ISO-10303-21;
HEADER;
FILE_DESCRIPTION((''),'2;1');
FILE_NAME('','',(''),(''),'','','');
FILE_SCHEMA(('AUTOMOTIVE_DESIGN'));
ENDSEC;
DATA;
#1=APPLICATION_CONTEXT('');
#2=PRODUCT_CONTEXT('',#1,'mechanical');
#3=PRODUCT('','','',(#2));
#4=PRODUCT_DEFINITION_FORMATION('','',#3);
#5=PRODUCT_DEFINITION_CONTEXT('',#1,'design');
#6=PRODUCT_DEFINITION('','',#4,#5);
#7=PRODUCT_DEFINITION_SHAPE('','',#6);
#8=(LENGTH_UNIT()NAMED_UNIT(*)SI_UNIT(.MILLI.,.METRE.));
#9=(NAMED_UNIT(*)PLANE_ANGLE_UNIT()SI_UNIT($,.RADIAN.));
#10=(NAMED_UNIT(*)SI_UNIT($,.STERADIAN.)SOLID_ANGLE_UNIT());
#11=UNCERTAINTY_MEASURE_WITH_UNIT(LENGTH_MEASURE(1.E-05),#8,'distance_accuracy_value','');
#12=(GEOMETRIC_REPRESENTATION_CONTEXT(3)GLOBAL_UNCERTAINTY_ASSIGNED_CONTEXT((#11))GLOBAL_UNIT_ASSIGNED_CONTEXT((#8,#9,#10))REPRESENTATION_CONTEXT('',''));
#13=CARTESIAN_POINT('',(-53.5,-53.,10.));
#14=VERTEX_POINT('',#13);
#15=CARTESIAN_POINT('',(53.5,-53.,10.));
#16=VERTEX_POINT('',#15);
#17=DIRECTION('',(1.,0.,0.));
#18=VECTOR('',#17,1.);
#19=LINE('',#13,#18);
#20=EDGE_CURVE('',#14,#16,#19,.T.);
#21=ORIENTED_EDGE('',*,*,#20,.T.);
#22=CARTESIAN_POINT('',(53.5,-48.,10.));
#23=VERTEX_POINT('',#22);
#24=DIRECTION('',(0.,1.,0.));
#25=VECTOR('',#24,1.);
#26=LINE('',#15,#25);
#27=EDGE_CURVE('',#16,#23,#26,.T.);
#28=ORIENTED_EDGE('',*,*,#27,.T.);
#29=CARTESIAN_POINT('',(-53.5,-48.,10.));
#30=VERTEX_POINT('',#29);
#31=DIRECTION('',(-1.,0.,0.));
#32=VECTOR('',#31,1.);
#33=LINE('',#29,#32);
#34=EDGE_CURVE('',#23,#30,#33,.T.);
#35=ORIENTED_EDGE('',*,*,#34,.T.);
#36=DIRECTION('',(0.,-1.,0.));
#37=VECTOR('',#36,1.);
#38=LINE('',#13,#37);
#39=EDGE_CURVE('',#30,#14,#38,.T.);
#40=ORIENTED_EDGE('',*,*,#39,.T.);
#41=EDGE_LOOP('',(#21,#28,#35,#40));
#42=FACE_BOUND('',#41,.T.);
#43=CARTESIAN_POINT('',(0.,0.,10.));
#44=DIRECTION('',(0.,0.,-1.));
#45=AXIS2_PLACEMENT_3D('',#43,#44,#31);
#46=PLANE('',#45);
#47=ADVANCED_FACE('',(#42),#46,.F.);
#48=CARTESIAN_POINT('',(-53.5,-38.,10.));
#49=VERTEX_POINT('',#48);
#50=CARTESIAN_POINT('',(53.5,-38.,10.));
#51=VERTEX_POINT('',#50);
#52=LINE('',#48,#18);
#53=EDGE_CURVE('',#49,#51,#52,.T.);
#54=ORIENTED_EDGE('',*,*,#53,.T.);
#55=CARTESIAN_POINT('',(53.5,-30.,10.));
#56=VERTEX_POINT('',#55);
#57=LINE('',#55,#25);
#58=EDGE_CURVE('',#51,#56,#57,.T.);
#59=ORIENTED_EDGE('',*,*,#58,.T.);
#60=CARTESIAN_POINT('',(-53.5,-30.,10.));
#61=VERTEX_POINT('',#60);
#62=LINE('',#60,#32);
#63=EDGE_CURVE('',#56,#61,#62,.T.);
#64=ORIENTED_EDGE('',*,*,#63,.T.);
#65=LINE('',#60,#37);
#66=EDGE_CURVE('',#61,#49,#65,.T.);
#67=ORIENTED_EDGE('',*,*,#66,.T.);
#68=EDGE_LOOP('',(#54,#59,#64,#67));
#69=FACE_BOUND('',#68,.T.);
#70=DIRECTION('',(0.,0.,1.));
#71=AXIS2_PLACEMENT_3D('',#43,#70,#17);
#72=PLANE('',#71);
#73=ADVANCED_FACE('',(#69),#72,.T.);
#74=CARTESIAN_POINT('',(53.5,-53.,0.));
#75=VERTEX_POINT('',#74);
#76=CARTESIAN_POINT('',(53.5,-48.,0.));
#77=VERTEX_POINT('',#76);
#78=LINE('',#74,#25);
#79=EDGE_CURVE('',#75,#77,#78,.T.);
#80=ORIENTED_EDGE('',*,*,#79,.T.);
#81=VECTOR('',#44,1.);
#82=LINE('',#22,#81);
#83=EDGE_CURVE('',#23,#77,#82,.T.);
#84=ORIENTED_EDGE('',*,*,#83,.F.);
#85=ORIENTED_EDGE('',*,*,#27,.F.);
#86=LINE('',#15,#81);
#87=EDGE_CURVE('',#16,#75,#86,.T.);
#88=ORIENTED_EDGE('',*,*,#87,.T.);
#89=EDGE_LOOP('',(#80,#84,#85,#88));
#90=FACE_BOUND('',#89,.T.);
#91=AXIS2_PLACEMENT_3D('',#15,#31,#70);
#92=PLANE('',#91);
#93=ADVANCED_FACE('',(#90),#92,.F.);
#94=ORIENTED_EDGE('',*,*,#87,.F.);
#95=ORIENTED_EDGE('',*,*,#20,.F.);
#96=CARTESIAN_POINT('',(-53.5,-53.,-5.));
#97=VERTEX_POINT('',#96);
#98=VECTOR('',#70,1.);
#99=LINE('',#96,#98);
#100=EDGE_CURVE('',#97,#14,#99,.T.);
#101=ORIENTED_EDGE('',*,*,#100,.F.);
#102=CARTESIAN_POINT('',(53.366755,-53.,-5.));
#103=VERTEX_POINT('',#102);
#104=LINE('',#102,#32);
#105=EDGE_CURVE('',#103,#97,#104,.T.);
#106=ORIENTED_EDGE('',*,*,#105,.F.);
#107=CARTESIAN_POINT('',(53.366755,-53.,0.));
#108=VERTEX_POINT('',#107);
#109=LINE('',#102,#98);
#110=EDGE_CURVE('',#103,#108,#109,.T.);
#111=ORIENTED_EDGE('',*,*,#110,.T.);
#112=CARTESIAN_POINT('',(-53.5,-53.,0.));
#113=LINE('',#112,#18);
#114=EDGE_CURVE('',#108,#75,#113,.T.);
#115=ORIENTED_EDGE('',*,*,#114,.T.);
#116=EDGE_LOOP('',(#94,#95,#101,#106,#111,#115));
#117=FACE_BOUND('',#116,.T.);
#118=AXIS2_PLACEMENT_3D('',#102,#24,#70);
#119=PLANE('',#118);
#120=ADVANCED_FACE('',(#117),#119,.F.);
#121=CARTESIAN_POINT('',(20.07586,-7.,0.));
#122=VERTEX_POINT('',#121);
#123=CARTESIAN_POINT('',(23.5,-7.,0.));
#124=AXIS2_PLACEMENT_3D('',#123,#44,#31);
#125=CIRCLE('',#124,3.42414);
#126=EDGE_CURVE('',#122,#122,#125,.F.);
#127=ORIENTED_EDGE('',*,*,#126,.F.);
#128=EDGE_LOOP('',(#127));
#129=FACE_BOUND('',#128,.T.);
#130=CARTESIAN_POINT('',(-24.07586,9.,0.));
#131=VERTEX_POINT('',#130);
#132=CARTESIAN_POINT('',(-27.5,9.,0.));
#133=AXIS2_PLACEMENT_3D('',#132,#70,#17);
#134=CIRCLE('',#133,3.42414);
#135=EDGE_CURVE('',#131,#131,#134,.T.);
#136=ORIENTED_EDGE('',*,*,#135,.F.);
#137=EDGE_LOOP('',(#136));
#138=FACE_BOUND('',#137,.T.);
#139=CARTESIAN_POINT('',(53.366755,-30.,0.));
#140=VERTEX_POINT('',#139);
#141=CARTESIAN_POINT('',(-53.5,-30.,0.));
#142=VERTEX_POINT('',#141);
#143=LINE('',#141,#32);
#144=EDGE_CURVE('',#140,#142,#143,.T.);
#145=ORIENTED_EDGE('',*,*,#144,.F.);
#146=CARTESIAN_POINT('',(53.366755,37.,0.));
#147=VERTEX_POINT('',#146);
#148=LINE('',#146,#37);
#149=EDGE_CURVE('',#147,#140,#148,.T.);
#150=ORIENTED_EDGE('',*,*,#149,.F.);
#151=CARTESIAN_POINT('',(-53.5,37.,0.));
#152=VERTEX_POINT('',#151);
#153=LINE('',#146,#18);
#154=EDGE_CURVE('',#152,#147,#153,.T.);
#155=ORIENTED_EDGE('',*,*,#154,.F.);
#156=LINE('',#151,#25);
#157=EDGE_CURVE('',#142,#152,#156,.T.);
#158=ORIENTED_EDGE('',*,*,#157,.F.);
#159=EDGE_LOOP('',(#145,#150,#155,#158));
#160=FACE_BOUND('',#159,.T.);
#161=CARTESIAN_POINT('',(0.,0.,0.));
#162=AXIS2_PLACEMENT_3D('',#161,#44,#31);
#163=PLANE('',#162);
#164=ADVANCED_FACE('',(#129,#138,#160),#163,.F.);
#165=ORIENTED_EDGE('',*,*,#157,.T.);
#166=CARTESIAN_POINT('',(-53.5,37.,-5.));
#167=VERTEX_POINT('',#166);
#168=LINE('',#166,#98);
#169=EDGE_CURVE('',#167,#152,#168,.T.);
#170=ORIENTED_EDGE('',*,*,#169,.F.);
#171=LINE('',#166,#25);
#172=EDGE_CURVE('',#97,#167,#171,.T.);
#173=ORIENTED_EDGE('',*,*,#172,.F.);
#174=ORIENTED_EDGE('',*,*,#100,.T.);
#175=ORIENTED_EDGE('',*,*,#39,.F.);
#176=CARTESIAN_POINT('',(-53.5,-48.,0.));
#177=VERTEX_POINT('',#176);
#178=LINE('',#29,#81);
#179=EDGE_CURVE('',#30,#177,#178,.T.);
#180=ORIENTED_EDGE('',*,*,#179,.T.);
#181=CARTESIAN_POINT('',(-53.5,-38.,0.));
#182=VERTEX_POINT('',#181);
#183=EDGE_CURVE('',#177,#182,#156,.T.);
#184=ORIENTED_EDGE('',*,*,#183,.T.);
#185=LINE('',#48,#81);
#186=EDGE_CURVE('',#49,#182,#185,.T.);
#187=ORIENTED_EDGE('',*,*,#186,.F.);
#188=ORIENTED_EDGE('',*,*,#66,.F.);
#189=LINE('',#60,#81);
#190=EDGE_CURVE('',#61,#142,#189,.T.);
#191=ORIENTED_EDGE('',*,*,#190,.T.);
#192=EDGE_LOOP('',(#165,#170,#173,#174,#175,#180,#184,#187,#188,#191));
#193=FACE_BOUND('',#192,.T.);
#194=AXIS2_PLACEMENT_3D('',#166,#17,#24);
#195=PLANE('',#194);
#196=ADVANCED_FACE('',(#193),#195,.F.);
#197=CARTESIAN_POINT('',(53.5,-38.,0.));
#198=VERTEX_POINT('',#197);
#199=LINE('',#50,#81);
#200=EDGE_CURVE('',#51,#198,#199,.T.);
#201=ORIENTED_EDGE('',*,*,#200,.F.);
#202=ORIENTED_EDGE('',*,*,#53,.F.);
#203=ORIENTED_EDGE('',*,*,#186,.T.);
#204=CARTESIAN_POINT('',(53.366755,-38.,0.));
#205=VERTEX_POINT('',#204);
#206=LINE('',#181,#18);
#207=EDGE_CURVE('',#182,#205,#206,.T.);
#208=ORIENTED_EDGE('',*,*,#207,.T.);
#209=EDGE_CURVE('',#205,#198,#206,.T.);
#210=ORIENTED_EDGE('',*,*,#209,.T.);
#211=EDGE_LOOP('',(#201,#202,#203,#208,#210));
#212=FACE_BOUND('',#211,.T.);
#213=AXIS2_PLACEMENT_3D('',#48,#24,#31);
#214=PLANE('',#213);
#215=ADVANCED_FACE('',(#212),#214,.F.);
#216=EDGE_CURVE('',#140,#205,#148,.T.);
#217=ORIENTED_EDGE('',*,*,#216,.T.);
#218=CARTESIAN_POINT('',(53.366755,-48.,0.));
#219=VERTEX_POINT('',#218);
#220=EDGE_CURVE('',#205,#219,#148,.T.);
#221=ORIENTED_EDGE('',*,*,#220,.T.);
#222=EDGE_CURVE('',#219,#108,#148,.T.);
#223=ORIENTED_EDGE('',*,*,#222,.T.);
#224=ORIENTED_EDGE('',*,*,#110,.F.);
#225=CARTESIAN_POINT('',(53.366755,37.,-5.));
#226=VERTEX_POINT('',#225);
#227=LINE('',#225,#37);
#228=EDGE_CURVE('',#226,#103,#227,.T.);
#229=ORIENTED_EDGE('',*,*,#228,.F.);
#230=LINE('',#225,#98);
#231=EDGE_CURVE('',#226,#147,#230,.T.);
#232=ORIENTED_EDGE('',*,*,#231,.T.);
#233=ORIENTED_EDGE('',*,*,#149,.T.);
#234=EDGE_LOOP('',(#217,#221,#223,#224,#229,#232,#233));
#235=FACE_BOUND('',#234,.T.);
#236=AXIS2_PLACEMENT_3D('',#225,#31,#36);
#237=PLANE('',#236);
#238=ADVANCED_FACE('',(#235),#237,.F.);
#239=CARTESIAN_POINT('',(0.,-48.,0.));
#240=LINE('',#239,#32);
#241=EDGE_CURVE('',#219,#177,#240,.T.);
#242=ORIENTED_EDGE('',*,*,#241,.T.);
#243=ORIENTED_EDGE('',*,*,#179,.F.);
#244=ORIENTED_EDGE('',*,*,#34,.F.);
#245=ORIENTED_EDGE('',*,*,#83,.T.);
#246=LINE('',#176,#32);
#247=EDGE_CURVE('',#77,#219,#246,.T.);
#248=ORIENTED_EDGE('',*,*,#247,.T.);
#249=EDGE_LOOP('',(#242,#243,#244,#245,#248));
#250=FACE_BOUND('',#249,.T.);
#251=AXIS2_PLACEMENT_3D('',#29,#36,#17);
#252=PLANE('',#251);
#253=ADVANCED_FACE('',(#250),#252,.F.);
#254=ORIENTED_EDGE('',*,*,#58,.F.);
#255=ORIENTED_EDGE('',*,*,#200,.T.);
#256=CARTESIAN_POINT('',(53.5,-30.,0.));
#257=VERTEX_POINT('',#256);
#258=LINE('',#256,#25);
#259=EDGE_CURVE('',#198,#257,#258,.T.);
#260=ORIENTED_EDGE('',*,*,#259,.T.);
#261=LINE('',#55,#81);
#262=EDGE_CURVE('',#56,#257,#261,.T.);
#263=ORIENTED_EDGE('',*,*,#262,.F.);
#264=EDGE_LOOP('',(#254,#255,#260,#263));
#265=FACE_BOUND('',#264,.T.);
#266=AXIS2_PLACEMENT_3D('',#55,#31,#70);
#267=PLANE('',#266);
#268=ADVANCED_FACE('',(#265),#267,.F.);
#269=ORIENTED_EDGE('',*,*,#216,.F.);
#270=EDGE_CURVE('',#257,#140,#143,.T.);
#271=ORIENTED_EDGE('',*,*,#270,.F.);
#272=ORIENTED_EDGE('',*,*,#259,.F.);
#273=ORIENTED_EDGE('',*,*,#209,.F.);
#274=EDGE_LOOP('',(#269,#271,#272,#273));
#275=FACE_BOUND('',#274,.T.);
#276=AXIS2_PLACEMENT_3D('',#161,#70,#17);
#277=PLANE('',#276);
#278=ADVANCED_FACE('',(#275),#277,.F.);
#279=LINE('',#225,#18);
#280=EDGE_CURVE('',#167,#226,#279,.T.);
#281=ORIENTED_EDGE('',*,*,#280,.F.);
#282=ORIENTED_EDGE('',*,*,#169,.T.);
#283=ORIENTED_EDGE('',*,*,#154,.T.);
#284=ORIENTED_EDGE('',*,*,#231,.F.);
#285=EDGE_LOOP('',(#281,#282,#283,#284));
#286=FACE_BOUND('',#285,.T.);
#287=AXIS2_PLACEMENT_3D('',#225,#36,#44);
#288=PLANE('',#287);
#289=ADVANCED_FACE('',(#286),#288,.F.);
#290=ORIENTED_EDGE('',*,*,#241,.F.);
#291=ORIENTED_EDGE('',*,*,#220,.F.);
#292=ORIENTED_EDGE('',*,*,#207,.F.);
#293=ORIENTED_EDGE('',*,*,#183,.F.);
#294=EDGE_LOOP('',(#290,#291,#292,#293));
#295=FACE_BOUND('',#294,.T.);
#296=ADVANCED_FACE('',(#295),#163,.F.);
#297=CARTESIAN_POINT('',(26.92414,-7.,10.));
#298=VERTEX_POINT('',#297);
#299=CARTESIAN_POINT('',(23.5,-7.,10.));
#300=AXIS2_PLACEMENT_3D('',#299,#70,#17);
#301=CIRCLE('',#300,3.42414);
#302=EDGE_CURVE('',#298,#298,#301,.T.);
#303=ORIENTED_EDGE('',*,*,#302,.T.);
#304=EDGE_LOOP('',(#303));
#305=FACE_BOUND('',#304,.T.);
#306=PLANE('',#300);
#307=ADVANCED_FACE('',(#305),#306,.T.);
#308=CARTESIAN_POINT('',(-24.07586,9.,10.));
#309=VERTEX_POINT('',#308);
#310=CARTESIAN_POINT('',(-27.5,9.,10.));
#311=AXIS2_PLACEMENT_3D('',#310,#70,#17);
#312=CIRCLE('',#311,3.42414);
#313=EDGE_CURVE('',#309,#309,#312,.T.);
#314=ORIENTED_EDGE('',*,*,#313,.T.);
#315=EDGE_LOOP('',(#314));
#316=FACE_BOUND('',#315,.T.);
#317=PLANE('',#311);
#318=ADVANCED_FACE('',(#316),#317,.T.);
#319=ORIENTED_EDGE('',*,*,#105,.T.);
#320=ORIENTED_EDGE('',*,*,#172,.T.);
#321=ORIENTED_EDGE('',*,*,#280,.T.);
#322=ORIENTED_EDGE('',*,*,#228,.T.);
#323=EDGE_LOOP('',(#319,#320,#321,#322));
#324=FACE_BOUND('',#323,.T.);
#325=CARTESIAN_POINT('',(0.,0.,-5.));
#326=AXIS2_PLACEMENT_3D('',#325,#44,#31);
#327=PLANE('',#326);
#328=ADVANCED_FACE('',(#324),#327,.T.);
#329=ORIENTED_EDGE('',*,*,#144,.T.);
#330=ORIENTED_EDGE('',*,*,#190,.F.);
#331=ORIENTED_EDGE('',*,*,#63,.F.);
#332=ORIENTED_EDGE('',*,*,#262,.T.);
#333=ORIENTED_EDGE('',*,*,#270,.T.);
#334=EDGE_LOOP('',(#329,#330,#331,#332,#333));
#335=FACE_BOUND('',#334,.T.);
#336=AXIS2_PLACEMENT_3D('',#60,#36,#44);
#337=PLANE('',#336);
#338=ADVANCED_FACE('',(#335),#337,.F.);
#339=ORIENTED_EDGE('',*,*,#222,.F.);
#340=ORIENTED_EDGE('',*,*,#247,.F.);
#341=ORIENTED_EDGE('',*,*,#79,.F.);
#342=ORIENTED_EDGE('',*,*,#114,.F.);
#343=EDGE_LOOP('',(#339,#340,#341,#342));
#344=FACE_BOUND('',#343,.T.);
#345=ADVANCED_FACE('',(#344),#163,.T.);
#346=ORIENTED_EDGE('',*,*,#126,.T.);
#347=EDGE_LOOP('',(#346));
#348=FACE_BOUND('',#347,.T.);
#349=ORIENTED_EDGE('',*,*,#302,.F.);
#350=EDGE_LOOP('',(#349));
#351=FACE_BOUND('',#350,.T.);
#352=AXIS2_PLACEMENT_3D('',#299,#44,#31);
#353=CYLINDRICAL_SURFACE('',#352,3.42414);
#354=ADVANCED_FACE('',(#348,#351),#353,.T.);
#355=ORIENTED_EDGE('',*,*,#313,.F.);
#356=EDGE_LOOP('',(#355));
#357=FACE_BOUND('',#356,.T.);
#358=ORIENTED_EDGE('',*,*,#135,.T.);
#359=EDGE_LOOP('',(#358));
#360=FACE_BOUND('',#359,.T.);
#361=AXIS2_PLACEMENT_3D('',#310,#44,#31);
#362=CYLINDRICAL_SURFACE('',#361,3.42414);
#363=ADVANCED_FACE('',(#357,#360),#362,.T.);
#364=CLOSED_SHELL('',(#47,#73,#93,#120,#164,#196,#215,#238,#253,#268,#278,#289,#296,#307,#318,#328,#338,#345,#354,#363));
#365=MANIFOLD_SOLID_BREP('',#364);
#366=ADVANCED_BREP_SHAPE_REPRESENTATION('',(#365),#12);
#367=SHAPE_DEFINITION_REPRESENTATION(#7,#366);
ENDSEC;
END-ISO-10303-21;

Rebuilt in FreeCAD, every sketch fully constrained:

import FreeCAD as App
import Part
import Sketcher
from FreeCAD import Vector


def add_polygon(sketch, points):
    """Adds a closed chain of lines whose ends are joined by coincident constraints."""
    first, n = sketch.GeometryCount, len(points)
    for a, b in zip(points, points[1:] + points[:1]):
        sketch.addGeometry(Part.LineSegment(App.Vector(*a, 0), App.Vector(*b, 0)), False)
    for i in range(n):
        sketch.addConstraint(Sketcher.Constraint("Coincident", first + i, 2, first + (i + 1) % n, 1))

doc = App.newDocument("Part")
params = doc.addObject("Spreadsheet::Sheet", "Params")
for row, (alias, value) in enumerate([
    ("pad1_length", "10 mm"),
    ("pad2_length", "10 mm"),
    ("sketch3_height", "90 mm"),
    ("pad3_length", "5 mm"),
    ("sketch4_width", "107 mm"),
    ("sketch4_height", "5 mm"),
    ("pad4_length", "10 mm"),
    ("sketch5_width", "107 mm"),
    ("sketch5_height", "8 mm"),
    ("pad5_length", "10 mm"),
], start=1):
    params.set(f"A{row}", alias)
    params.set(f"B{row}", "=" + value)
    params.setAlias(f"B{row}", alias)

body = doc.addObject("PartDesign::Body", "Body")

# Sketch on XY plane
sketch1 = doc.addObject("Sketcher::SketchObject", "Sketch")
body.addObject(sketch1)
sketch1.AttachmentSupport = (doc.XY_Plane, [""])
sketch1.MapMode = "FlatFace"
sketch1.addGeometry(Part.Circle(Vector(-27.5, 9, 0), Vector(0, 0, 1), 3.4), False)
sketch1.addConstraint([
    Sketcher.Constraint("DistanceY", -1, 1, 0, 3, 9.0),
    Sketcher.Constraint("DistanceX", 0, 3, -1, 1, 27.5),
    Sketcher.Constraint("Diameter", 0, 6.84828),
])
pad1 = doc.addObject("PartDesign::Pad", "Pad")
body.addObject(pad1)
pad1.Profile = sketch1
pad1.setExpression("Length", "Params.pad1_length")
body2 = doc.addObject("PartDesign::Body", "Body001")

# Sketch on XY plane
sketch2 = doc.addObject("Sketcher::SketchObject", "Sketch001")
body2.addObject(sketch2)
sketch2.AttachmentSupport = (doc.getObject("XY_Plane001"), [""])
sketch2.MapMode = "FlatFace"
sketch2.addGeometry(Part.Circle(Vector(23.5, -7, 0), Vector(0, 0, 1), 3.4), False)
sketch2.addConstraint([
    Sketcher.Constraint("DistanceY", 0, 3, -1, 1, 7.0),
    Sketcher.Constraint("DistanceX", -1, 1, 0, 3, 23.5),
    Sketcher.Constraint("Diameter", 0, 6.84828),
])
pad2 = doc.addObject("PartDesign::Pad", "Pad001")
body2.addObject(pad2)
pad2.Profile = sketch2
pad2.setExpression("Length", "Params.pad2_length")
body.AllowCompound = True
doc.recompute()

boolean = doc.addObject("PartDesign::Boolean", "Boolean")
body.addObject(boolean)
boolean.Type = "Fuse"
boolean.addObjects([body2])

# Sketch on XY plane
sketch3 = doc.addObject("Sketcher::SketchObject", "Sketch002")
body.addObject(sketch3)
sketch3.AttachmentSupport = (doc.XY_Plane, [""])
sketch3.MapMode = "FlatFace"
add_polygon(sketch3, [(53, 37), (53, -53), (-54, -53), (-54, 37)])  # lines 0-3
sketch3.addConstraint([
    Sketcher.Constraint("Vertical", 0),
    Sketcher.Constraint("Horizontal", 1),
    Sketcher.Constraint("Vertical", 2),
    Sketcher.Constraint("Horizontal", 3),
    Sketcher.Constraint("DistanceY", 0, 2, 0, 1, 90.0),
    Sketcher.Constraint("DistanceY", 0, 2, -1, 1, 53.0),
    Sketcher.Constraint("DistanceX", 1, 2, -1, 1, 53.5),
    Sketcher.Constraint("DistanceX", 1, 2, 1, 1, 106.866755),
])
sketch3.setExpression("Constraints[8]", "Params.sketch3_height")
pad3 = doc.addObject("PartDesign::Pad", "Pad002")
body.addObject(pad3)
pad3.Profile = sketch3
pad3.setExpression("Length", "Params.pad3_length")
pad3.Reversed = True

# Sketch on XY plane
sketch4 = doc.addObject("Sketcher::SketchObject", "Sketch003")
body.addObject(sketch4)
sketch4.AttachmentSupport = (doc.XY_Plane, [""])
sketch4.MapMode = "FlatFace"
add_polygon(sketch4, [(-54, -48), (-54, -53), (54, -53), (54, -48)])  # lines 0-3
sketch4.addConstraint([
    Sketcher.Constraint("Vertical", 0),
    Sketcher.Constraint("Horizontal", 1),
    Sketcher.Constraint("Vertical", 2),
    Sketcher.Constraint("Horizontal", 3),
    Sketcher.Constraint("DistanceX", 1, 1, 1, 2, 107.0),
    Sketcher.Constraint("DistanceY", 0, 2, 0, 1, 5.0),
    Sketcher.Constraint("DistanceY", 0, 2, -1, 1, 53.0),
    Sketcher.Constraint("DistanceX", 0, 2, -1, 1, 53.5),
])
sketch4.setExpression("Constraints[8]", "Params.sketch4_width")
sketch4.setExpression("Constraints[9]", "Params.sketch4_height")
pad4 = doc.addObject("PartDesign::Pad", "Pad003")
body.addObject(pad4)
pad4.Profile = sketch4
pad4.setExpression("Length", "Params.pad4_length")

# Sketch on XY plane
sketch5 = doc.addObject("Sketcher::SketchObject", "Sketch004")
body.addObject(sketch5)
sketch5.AttachmentSupport = (doc.XY_Plane, [""])
sketch5.MapMode = "FlatFace"
add_polygon(sketch5, [(-54, -30), (-54, -38), (54, -38), (54, -30)])  # lines 0-3
sketch5.addConstraint([
    Sketcher.Constraint("Vertical", 0),
    Sketcher.Constraint("Horizontal", 1),
    Sketcher.Constraint("Vertical", 2),
    Sketcher.Constraint("Horizontal", 3),
    Sketcher.Constraint("DistanceX", 1, 1, 1, 2, 107.0),
    Sketcher.Constraint("DistanceY", 0, 2, 0, 1, 8.0),
    Sketcher.Constraint("DistanceY", 0, 2, -1, 1, 38.0),
    Sketcher.Constraint("DistanceX", 0, 2, -1, 1, 53.5),
])
sketch5.setExpression("Constraints[8]", "Params.sketch5_width")
sketch5.setExpression("Constraints[9]", "Params.sketch5_height")
pad5 = doc.addObject("PartDesign::Pad", "Pad004")
body.addObject(pad5)
pad5.Profile = sketch5
pad5.setExpression("Length", "Params.pad5_length")

doc.recompute()
